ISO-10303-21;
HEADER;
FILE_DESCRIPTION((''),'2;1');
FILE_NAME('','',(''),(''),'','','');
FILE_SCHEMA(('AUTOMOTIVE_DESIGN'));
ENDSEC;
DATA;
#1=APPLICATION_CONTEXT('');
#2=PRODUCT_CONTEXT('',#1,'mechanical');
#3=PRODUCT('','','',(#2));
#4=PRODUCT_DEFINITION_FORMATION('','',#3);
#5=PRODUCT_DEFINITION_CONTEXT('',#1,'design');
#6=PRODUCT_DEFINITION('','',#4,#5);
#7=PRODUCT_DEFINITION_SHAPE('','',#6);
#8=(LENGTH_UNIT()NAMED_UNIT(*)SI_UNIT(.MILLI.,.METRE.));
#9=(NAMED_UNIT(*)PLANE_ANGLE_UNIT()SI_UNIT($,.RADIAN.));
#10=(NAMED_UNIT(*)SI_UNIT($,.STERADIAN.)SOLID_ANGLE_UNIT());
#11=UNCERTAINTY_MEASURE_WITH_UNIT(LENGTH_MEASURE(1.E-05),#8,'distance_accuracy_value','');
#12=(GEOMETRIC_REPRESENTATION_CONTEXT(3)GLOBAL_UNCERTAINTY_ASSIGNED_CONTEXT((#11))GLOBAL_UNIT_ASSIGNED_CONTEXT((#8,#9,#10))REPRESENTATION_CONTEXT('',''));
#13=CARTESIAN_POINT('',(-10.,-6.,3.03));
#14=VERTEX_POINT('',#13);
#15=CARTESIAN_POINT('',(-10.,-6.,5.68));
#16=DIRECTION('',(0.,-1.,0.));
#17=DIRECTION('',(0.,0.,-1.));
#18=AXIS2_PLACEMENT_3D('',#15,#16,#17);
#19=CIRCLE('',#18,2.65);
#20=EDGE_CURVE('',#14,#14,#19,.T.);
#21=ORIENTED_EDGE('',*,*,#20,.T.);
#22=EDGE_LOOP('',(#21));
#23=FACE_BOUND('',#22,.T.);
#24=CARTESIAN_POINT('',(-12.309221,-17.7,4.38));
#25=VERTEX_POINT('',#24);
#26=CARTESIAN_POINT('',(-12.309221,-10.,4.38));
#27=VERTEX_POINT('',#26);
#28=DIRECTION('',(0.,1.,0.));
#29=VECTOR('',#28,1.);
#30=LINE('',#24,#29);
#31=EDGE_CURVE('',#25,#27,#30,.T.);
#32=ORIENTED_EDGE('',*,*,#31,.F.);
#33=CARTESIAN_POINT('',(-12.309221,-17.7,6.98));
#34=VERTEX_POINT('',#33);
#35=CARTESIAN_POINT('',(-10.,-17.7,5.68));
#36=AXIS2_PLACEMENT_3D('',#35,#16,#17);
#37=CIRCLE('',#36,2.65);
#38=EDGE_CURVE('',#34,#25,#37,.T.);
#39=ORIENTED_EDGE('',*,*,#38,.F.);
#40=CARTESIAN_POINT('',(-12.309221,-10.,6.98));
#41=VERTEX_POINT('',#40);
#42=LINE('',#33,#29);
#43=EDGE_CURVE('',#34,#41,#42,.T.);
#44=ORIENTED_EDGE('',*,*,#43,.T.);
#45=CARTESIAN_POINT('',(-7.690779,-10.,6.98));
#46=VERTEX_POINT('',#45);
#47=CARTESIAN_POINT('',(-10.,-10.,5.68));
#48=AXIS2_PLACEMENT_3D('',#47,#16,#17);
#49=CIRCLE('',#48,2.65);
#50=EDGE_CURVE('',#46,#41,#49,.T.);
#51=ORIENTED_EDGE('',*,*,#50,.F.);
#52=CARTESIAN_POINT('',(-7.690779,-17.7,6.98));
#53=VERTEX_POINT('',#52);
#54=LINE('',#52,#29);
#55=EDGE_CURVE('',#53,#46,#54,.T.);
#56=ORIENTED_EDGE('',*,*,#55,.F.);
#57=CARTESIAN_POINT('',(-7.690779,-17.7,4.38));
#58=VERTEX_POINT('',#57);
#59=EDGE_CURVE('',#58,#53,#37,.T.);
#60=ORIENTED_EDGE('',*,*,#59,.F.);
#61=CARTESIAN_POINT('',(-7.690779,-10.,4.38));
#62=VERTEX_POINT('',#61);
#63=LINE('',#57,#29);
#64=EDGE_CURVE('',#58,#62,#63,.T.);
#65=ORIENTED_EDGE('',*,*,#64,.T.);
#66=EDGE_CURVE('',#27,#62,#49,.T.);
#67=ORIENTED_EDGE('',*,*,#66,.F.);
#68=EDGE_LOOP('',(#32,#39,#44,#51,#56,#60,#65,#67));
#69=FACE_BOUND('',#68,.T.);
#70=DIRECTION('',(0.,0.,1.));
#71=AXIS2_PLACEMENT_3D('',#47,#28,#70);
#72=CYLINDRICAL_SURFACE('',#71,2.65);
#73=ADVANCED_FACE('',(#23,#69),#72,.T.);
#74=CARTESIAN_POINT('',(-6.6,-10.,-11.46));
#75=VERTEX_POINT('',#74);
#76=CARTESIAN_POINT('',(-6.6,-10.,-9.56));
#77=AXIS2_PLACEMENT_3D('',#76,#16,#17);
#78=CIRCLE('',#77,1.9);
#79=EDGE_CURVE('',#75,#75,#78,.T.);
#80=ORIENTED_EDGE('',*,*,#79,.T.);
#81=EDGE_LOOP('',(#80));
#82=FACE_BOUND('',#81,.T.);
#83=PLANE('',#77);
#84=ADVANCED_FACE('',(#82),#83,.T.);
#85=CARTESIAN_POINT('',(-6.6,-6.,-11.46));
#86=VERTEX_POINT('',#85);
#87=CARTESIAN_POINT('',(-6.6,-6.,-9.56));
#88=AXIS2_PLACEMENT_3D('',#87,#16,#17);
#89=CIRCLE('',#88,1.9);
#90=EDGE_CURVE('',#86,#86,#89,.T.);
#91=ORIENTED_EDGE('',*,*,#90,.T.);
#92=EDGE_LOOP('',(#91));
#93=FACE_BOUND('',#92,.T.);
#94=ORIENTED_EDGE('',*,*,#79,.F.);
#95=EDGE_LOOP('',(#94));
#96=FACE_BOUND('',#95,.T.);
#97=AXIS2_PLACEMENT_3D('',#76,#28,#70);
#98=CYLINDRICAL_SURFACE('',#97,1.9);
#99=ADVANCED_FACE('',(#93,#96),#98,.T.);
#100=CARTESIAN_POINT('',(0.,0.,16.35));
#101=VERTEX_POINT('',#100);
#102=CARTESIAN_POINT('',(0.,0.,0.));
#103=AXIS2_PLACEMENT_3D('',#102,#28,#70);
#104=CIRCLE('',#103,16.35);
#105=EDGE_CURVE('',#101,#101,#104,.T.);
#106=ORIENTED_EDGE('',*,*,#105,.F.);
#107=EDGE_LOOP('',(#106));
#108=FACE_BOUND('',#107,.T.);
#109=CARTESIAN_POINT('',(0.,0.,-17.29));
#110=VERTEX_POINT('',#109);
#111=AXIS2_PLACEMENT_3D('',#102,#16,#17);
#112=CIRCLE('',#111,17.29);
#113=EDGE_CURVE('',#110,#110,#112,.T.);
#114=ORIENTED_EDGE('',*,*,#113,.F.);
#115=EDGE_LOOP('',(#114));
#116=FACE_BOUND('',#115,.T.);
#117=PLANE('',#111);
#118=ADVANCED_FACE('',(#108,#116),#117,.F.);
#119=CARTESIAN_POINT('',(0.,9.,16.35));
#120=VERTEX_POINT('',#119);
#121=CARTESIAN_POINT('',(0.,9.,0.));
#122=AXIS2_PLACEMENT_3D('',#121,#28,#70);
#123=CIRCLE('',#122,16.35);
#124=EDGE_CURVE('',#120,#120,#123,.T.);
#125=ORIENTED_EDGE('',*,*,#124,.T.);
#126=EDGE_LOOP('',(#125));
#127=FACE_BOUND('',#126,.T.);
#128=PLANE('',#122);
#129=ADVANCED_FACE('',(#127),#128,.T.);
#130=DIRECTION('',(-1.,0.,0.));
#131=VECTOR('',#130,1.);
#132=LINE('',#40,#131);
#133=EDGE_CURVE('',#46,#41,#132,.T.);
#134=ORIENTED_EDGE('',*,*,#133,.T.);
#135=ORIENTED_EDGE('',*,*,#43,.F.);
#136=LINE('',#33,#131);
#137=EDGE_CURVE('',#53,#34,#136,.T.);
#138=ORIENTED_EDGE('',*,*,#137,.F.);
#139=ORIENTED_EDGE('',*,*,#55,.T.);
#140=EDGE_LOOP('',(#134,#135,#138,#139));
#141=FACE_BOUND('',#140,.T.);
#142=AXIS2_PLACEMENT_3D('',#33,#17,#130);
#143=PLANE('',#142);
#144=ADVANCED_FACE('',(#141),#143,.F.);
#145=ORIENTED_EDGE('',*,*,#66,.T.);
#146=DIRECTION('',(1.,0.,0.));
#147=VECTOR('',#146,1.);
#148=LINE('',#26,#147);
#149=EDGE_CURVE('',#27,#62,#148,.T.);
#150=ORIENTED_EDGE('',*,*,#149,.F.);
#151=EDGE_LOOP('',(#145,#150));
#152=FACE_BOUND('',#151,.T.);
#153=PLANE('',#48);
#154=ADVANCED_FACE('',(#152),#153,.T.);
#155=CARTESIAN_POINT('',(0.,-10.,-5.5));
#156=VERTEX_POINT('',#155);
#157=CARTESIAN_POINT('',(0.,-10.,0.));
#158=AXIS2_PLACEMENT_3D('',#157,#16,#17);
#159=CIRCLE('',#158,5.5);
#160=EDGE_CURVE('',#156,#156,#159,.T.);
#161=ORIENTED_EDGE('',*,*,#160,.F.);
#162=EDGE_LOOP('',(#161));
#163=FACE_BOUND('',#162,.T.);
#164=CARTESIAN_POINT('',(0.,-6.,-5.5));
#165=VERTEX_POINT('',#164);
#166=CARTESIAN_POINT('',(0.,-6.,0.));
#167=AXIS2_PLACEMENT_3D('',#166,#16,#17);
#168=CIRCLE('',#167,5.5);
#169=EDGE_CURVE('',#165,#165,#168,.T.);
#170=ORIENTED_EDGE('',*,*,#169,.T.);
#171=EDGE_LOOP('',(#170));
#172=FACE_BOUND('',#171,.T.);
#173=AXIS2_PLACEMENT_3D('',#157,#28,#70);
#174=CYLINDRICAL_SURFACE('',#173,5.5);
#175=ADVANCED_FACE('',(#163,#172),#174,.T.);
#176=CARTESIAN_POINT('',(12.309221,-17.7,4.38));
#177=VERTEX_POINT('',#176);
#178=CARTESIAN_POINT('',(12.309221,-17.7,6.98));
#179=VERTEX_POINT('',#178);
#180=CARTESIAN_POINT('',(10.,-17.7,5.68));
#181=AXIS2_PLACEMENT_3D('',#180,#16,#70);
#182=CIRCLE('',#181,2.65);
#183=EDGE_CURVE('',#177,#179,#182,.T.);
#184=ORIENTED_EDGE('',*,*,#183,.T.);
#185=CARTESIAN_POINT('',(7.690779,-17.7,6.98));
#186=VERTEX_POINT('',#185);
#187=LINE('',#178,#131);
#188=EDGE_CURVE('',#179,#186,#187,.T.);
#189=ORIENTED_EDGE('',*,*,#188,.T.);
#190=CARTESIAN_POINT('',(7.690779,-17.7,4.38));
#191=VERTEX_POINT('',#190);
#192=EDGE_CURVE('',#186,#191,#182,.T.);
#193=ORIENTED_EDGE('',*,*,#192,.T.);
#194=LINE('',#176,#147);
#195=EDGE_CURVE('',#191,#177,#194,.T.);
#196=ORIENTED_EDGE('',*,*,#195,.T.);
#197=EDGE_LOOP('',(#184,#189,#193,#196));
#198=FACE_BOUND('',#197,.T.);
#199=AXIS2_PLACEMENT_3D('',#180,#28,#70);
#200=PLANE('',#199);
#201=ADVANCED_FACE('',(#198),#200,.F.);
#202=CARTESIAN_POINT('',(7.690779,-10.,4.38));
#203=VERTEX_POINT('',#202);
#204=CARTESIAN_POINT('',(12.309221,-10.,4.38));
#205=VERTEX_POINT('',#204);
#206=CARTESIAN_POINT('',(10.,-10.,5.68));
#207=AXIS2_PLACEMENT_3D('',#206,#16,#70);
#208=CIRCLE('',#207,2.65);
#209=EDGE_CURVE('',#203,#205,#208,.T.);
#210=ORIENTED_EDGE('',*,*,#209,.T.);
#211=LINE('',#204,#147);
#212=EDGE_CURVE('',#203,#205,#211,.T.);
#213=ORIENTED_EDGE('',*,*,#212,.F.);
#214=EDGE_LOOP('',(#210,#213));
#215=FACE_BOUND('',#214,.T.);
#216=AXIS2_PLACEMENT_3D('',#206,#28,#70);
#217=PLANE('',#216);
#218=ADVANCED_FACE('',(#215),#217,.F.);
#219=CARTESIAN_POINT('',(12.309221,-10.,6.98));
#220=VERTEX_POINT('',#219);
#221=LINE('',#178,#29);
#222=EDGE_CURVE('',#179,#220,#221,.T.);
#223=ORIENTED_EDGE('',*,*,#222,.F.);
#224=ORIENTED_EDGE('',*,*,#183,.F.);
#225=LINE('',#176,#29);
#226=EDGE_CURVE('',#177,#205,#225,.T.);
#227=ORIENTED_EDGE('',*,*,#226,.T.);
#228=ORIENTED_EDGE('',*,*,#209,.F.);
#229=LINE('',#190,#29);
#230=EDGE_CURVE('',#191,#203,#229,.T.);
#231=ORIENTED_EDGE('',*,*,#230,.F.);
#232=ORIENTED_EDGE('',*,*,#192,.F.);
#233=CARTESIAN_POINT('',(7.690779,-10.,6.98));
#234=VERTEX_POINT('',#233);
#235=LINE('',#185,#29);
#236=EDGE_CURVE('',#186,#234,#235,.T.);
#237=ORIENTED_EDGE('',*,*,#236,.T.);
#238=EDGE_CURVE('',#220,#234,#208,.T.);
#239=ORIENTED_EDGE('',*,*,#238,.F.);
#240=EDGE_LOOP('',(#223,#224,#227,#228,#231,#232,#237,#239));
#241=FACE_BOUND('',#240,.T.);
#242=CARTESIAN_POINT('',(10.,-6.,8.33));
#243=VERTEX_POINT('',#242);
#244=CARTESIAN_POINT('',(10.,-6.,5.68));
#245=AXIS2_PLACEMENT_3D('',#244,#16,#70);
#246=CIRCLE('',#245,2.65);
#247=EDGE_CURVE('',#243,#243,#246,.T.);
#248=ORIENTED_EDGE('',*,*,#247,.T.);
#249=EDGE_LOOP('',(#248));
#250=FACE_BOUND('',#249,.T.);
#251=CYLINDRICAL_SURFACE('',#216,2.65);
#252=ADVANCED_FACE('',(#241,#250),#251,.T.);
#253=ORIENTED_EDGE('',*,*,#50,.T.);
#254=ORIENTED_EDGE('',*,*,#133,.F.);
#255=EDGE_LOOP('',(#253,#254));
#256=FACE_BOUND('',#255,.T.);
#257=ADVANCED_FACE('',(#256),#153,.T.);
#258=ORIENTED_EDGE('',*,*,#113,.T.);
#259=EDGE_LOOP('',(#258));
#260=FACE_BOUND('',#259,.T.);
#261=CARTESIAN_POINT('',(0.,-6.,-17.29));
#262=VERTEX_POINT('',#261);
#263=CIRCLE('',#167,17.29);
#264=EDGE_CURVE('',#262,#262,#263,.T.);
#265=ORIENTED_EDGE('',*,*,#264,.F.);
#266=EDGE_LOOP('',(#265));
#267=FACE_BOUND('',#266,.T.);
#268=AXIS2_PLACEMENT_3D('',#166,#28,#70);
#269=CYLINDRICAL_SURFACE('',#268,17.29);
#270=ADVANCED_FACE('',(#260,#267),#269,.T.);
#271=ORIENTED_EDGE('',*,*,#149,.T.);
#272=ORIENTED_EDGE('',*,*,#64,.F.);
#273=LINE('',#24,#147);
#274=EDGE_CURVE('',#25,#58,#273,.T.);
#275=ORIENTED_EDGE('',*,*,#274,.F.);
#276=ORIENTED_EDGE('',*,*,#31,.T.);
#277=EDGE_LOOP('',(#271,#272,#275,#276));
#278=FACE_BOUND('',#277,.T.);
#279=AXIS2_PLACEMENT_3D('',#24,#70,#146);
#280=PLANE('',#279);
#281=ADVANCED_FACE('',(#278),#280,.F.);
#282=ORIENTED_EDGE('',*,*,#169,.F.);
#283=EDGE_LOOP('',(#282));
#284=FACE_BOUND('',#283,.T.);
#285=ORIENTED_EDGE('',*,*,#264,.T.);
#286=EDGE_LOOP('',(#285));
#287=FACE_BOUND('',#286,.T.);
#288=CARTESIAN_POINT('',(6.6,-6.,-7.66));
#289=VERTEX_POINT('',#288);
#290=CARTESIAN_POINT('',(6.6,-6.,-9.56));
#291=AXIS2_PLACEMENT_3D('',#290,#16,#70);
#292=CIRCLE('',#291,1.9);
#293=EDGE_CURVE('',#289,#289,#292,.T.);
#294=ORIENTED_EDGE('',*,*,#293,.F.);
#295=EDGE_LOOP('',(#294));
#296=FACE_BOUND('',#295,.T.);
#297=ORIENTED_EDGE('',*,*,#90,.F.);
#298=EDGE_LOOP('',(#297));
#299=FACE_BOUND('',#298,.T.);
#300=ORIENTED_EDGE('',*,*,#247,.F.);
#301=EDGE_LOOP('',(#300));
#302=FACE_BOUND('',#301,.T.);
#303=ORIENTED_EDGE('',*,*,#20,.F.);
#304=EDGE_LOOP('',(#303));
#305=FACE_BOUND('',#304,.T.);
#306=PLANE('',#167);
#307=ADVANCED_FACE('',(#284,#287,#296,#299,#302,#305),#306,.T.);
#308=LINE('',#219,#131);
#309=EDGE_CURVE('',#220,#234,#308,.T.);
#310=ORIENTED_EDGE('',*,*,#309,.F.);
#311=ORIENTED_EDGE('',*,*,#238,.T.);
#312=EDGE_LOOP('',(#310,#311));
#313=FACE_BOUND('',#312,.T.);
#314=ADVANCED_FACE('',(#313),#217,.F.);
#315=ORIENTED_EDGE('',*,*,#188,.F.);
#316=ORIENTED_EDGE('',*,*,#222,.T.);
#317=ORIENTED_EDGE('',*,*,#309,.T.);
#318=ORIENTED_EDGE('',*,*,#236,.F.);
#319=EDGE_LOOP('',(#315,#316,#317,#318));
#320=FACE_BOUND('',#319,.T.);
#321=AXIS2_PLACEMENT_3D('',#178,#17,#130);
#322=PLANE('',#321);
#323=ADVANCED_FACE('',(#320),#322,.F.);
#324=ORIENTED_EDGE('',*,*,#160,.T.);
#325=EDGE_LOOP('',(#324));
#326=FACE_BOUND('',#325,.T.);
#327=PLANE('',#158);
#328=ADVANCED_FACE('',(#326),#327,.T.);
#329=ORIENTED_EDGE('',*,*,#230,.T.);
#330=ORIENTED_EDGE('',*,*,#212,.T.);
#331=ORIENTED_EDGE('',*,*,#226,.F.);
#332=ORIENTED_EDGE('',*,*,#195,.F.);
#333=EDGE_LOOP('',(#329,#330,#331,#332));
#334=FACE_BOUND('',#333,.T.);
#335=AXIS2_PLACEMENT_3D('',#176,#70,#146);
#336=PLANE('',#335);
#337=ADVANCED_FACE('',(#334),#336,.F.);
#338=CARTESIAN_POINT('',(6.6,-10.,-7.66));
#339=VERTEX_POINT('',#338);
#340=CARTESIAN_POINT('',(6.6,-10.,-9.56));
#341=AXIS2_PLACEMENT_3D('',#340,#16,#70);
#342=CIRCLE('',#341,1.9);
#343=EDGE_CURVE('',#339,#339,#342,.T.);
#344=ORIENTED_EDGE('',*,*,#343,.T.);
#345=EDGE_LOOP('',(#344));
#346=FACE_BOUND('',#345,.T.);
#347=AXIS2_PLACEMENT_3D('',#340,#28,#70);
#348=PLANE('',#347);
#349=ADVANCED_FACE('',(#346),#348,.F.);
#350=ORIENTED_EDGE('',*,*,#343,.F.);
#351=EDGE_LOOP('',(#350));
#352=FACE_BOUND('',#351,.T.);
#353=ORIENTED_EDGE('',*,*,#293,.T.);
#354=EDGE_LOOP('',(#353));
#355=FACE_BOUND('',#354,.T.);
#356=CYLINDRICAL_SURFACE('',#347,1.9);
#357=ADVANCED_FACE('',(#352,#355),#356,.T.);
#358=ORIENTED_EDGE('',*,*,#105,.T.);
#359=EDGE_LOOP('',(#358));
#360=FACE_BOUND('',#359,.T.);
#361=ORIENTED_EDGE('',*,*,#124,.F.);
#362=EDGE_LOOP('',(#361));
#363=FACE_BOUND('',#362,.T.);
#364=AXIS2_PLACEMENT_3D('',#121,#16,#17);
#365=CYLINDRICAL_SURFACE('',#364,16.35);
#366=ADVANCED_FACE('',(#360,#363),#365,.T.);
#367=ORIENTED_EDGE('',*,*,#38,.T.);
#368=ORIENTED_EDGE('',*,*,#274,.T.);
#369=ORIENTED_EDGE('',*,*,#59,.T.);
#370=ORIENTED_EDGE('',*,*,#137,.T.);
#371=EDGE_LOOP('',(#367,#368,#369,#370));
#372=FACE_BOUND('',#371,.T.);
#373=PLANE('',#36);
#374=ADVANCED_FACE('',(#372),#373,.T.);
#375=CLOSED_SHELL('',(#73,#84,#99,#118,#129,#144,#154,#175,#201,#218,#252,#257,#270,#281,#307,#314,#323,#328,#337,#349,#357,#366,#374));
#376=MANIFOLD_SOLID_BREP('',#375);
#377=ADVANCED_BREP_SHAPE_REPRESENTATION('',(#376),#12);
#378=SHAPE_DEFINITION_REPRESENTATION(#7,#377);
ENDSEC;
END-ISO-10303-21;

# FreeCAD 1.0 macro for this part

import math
import FreeCAD as App
import Part
import Sketcher

V = App.Vector
Q = App.Units.Quantity

doc = App.newDocument("Part")
body = doc.addObject("PartDesign::Body", "Body")

# Sketch on XZ plane
sketch1 = body.newObject("Sketcher::SketchObject", "Sketch")
sketch1.AttachmentSupport = (doc.getObject("XZ_Plane"), [""])
sketch1.MapMode = "FlatFace"
sketch1.addGeometry(Part.Circle(V(0, 0, 0), V(0, 0, 1), 16), False)
sketch1.addConstraint([
    Sketcher.Constraint("Coincident", 0, 3, -1, 1),
    Sketcher.Constraint("Diameter", 0, Q("32.7 mm")),
])
pad1 = body.newObject("PartDesign::Pad", "Pad")
pad1.Profile = sketch1
pad1.Length = 9
pad1.Reversed = True

# Sketch on XZ plane
sketch2 = body.newObject("Sketcher::SketchObject", "Sketch001")
sketch2.AttachmentSupport = (doc.getObject("XZ_Plane"), [""])
sketch2.MapMode = "FlatFace"
sketch2.addGeometry(Part.Circle(V(0, 0, 0), V(0, 0, 1), 17), False)
sketch2.addConstraint([
    Sketcher.Constraint("Coincident", 0, 3, -1, 1),
    Sketcher.Constraint("Diameter", 0, Q("34.58 mm")),
])
pad2 = body.newObject("PartDesign::Pad", "Pad001")
pad2.Profile = sketch2
pad2.Length = 6

# Sketch on XZ plane
sketch3 = body.newObject("Sketcher::SketchObject", "Sketch002")
sketch3.AttachmentSupport = (doc.getObject("XZ_Plane"), [""])
sketch3.MapMode = "FlatFace"
sketch3.AttachmentOffset = App.Placement(V(0, 0, 6), App.Rotation())
sketch3.addGeometry([
    Part.Circle(V(0, 0, 0), V(0, 0, 1), 5.5),  # 0
    Part.Circle(V(-6.6, -9.6, 0), V(0, 0, 1), 1.9),  # 1
    Part.Circle(V(-10, 5.7, 0), V(0, 0, 1), 2.6),  # 2
    Part.Circle(V(6.6, -9.6, 0), V(0, 0, 1), 1.9),  # 3
    Part.Circle(V(10, 5.7, 0), V(0, 0, 1), 2.6),  # 4
], False)
sketch3.addConstraint([
    Sketcher.Constraint("Coincident", 0, 3, -1, 1),
    Sketcher.Constraint("Equal", 1, 3),
    Sketcher.Constraint("Equal", 2, 4),
    Sketcher.Constraint("Symmetric", 1, 3, 3, 3, -2),
    Sketcher.Constraint("Symmetric", 2, 3, 4, 3, -2),
    Sketcher.Constraint("Diameter", 0, Q("11 mm")),
    Sketcher.Constraint("Diameter", 1, Q("3.8 mm")),
    Sketcher.Constraint("Diameter", 2, Q("5.3 mm")),
    Sketcher.Constraint("DistanceX", 2, 3, -1, 1, Q("10 mm")),
    Sketcher.Constraint("DistanceX", 1, 3, -1, 1, Q("6.6 mm")),
    Sketcher.Constraint("DistanceY", 1, 3, -1, 1, Q("9.56 mm")),
    Sketcher.Constraint("DistanceY", -1, 1, 2, 3, Q("5.68 mm")),
])
pad3 = body.newObject("PartDesign::Pad", "Pad002")
pad3.Profile = sketch3
pad3.Length = 4

# Sketch on XZ plane
sketch4 = body.newObject("Sketcher::SketchObject", "Sketch003")
sketch4.AttachmentSupport = (doc.getObject("XZ_Plane"), [""])
sketch4.MapMode = "FlatFace"
sketch4.AttachmentOffset = App.Placement(V(0, 0, 10), App.Rotation())
sketch4.addGeometry([
    Part.LineSegment(V(-7.7, 7, 0), V(-12.3, 7, 0)),  # 0
    Part.ArcOfCircle(Part.Circle(V(-10, 5.7, 0), V(0, 0, 1), 2.7), math.radians(151), math.radians(209)),  # 1
    Part.LineSegment(V(-12.3, 4.4, 0), V(-7.7, 4.4, 0)),  # 2
    Part.ArcOfCircle(Part.Circle(V(-10, 5.7, 0), V(0, 0, 1), 2.7), math.radians(-29), math.radians(29)),  # 3
    Part.LineSegment(V(12.3, 7, 0), V(7.7, 7, 0)),  # 4
    Part.ArcOfCircle(Part.Circle(V(10, 5.7, 0), V(0, 0, 1), 2.7), math.radians(151), math.radians(209)),  # 5
    Part.LineSegment(V(7.7, 4.4, 0), V(12.3, 4.4, 0)),  # 6
    Part.ArcOfCircle(Part.Circle(V(10, 5.7, 0), V(0, 0, 1), 2.7), math.radians(-29), math.radians(29)),  # 7
], False)
sketch4.addConstraint([
    Sketcher.Constraint("Coincident", 0, 2, 1, 1),
    Sketcher.Constraint("Coincident", 1, 2, 2, 1),
    Sketcher.Constraint("Coincident", 2, 2, 3, 1),
    Sketcher.Constraint("Coincident", 3, 2, 0, 1),
    Sketcher.Constraint("Coincident", 4, 2, 5, 1),
    Sketcher.Constraint("Coincident", 5, 2, 6, 1),
    Sketcher.Constraint("Coincident", 6, 2, 7, 1),
    Sketcher.Constraint("Coincident", 7, 2, 4, 1),
    Sketcher.Constraint("Horizontal", 0),
    Sketcher.Constraint("Horizontal", 2),
    Sketcher.Constraint("Horizontal", 4),
    Sketcher.Constraint("Horizontal", 6),
    Sketcher.Constraint("Coincident", 3, 3, 1, 3),
    Sketcher.Constraint("Coincident", 7, 3, 5, 3),
    Sketcher.Constraint("Equal", 1, 3),
    Sketcher.Constraint("Equal", 3, 5),
    Sketcher.Constraint("Equal", 5, 7),
    Sketcher.Constraint("Symmetric", 1, 3, 5, 3, -2),
    Sketcher.Constraint("Horizontal", 3, 2, 4, 2),
    Sketcher.Constraint("Horizontal", 2, 2, 5, 2),
    Sketcher.Constraint("Vertical", 0, 2, 1, 2),
    Sketcher.Constraint("Radius", 1, Q("2.65 mm")),
    Sketcher.Constraint("DistanceX", 1, 3, -1, 1, Q("10 mm")),
    Sketcher.Constraint("DistanceY", 3, 3, 0, 2, Q("1.3 mm")),
    Sketcher.Constraint("DistanceY", -1, 1, 1, 3, Q("5.68 mm")),
])
pad4 = body.newObject("PartDesign::Pad", "Pad003")
pad4.Profile = sketch4
pad4.Length = 7.7

doc.recompute()
